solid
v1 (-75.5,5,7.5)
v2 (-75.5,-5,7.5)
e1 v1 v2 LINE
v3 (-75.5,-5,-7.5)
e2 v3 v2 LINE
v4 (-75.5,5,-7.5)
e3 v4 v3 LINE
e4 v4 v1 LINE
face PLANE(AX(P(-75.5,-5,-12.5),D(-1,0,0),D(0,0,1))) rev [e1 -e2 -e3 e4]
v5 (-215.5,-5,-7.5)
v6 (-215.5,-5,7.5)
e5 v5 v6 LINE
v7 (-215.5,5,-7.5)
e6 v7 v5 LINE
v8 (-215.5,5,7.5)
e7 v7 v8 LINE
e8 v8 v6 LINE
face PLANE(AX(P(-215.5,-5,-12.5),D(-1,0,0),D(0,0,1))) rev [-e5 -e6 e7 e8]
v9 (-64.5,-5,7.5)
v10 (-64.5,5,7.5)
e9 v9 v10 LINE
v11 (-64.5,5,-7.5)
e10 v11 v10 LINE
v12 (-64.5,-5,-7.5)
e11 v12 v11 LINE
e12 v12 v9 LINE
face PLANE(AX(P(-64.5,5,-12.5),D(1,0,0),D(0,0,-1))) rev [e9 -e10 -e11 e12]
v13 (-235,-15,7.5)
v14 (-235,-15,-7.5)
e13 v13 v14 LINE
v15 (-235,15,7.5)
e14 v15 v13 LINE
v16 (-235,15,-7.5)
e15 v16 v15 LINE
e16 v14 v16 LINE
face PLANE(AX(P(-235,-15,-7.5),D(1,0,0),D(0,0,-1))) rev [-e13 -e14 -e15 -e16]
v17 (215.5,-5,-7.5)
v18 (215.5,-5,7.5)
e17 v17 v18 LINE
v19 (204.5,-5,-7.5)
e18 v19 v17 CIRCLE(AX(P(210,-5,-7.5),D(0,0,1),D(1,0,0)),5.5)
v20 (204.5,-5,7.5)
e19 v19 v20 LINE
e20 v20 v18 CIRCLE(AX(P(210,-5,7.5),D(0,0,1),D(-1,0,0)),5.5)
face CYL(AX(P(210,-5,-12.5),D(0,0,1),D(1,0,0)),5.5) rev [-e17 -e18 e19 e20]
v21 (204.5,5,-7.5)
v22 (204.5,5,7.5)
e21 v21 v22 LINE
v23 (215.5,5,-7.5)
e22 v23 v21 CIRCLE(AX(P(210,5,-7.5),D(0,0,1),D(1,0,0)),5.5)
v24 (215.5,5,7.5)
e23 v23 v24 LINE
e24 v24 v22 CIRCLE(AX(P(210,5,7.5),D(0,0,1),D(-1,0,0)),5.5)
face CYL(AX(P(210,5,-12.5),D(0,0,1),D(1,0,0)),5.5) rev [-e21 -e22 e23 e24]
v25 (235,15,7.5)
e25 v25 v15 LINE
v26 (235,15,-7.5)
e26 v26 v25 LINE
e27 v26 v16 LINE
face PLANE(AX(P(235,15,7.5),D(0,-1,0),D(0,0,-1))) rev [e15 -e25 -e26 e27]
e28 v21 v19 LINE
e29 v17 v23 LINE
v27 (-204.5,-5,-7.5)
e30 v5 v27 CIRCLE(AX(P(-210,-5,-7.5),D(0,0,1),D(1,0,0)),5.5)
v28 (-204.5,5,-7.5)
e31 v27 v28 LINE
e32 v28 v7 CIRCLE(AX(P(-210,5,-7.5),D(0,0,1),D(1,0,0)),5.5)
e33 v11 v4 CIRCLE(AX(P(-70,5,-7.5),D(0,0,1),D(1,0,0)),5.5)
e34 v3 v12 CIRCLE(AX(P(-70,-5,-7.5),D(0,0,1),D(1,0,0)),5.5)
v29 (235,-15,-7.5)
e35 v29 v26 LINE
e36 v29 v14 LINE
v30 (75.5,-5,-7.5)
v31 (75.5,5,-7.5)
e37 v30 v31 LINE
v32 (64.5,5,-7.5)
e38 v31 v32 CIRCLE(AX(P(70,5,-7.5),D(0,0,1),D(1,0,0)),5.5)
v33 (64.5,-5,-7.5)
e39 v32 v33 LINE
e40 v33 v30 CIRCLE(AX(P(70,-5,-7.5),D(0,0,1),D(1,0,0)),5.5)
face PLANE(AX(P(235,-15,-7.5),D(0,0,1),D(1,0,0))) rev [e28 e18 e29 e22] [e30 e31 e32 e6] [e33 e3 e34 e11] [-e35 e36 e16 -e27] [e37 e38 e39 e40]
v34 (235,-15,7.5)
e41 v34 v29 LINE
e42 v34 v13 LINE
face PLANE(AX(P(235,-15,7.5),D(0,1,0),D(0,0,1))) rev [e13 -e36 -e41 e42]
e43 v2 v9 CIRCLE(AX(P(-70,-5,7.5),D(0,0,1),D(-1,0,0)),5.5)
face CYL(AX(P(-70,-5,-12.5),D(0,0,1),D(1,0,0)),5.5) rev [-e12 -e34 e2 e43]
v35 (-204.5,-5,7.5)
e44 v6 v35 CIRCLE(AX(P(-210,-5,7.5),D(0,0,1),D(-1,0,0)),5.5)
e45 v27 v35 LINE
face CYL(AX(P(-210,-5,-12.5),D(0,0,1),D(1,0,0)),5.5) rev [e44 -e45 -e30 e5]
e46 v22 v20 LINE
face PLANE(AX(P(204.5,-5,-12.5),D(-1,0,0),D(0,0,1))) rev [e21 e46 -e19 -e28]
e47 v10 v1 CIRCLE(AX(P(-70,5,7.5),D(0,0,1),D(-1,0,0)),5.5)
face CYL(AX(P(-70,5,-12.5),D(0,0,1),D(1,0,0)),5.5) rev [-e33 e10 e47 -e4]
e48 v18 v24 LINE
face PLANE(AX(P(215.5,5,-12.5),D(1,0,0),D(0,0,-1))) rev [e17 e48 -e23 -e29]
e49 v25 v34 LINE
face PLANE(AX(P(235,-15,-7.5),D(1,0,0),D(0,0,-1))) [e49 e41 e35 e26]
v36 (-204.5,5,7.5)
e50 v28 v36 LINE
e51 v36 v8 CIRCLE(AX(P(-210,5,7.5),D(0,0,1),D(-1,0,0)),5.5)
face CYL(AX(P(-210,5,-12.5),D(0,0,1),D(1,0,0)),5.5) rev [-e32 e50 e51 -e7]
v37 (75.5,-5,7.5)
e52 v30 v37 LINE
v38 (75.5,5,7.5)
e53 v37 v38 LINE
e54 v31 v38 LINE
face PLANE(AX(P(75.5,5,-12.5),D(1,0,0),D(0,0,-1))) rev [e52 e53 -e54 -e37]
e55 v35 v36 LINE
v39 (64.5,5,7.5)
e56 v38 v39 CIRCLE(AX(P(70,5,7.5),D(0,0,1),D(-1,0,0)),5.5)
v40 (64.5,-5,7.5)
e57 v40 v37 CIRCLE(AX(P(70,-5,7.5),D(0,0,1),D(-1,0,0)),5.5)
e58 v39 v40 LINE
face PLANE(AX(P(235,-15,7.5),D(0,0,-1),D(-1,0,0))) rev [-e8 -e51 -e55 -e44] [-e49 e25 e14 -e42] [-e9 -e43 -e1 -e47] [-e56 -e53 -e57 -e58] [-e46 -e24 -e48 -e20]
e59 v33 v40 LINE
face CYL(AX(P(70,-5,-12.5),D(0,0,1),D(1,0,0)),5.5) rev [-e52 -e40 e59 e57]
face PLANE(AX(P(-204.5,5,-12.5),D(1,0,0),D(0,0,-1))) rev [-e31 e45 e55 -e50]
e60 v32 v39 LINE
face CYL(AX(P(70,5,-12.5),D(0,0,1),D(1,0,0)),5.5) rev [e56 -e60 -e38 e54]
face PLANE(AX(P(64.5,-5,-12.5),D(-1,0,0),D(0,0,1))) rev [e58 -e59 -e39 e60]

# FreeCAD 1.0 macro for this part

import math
import FreeCAD as App
import Part
import Sketcher
from FreeCAD import Vector
Q = App.Units.Quantity

doc = App.newDocument("Part")
params = doc.addObject("Spreadsheet::Sheet", "Params")
for row, (alias, value) in enumerate([
    ("sketch1_width", "30 mm"),
    ("sketch1_height", "15 mm"),
    ("pad1_length", "470 mm"),
    ("sketch2_radius", "5.5 mm"),
    ("sketch2_height", "10 mm"),
    ("pocket1_length", "20 mm"),
    ("linearpattern_pitch", "140 mm"),
], start=1):
    params.set(f"A{row}", alias)
    params.set(f"B{row}", "=" + value)
    params.setAlias(f"B{row}", alias)

body = doc.addObject("PartDesign::Body", "Body")

sketch1 = doc.addObject("Sketcher::SketchObject", "Sketch")
body.addObject(sketch1)
sketch1.AttachmentSupport = (doc.YZ_Plane, [""])
sketch1.MapMode = "FlatFace"
sketch1.AttachmentOffset = App.Placement(Vector(0, 0, -235), App.Rotation())
sketch1.addGeometry([
    Part.LineSegment(Vector(-15, 8, 0), Vector(-15, -8, 0)),
    Part.LineSegment(Vector(-15, -8, 0), Vector(15, -8, 0)),
    Part.LineSegment(Vector(15, -8, 0), Vector(15, 8, 0)),
    Part.LineSegment(Vector(15, 8, 0), Vector(-15, 8, 0)),
], False)
sketch1.addConstraint([
    Sketcher.Constraint("Coincident", 0, 2, 1, 1),
    Sketcher.Constraint("Coincident", 1, 2, 2, 1),
    Sketcher.Constraint("Coincident", 2, 2, 3, 1),
    Sketcher.Constraint("Coincident", 3, 2, 0, 1),
    Sketcher.Constraint("Vertical", 0),
    Sketcher.Constraint("Horizontal", 1),
    Sketcher.Constraint("Vertical", 2),
    Sketcher.Constraint("Horizontal", 3),
    Sketcher.Constraint("Symmetric", 0, 2, 2, 2, -1, 1),
    Sketcher.Constraint("DistanceX", 1, 1, 1, 2, Q("30 mm")),
    Sketcher.Constraint("DistanceY", 0, 2, 0, 1, Q("15 mm")),
])
sketch1.setExpression("Constraints[9]", "Params.sketch1_width")
sketch1.setExpression("Constraints[10]", "Params.sketch1_height")
pad1 = doc.addObject("PartDesign::Pad", "Pad")
body.addObject(pad1)
pad1.Profile = sketch1
pad1.setExpression("Length", "Params.pad1_length")

sketch2 = doc.addObject("Sketcher::SketchObject", "Sketch001")
body.addObject(sketch2)
sketch2.AttachmentSupport = (doc.XY_Plane, [""])
sketch2.MapMode = "FlatFace"
sketch2.AttachmentOffset = App.Placement(Vector(0, 0, 7.5), App.Rotation())
sketch2.addGeometry([
    Part.LineSegment(Vector(-216, 5, 0), Vector(-216, -5, 0)),
    Part.ArcOfCircle(Part.Circle(Vector(-210, -5, 0), Vector(0, 0, 1), 6), math.radians(180), math.radians(360)),
    Part.LineSegment(Vector(-204, -5, 0), Vector(-204, 5, 0)),
    Part.ArcOfCircle(Part.Circle(Vector(-210, 5, 0), Vector(0, 0, 1), 6), math.radians(0), math.radians(180)),
], False)
sketch2.addConstraint([
    Sketcher.Constraint("Tangent", 0, 2, 1, 1),
    Sketcher.Constraint("Tangent", 1, 2, 2, 1),
    Sketcher.Constraint("Tangent", 2, 2, 3, 1),
    Sketcher.Constraint("Tangent", 3, 2, 0, 1),
    Sketcher.Constraint("Vertical", 0),
    Sketcher.Constraint("Vertical", 2),
    Sketcher.Constraint("Radius", 1, Q("5.5 mm")),
    Sketcher.Constraint("DistanceY", 0, 2, 0, 1, Q("10 mm")),
    Sketcher.Constraint("DistanceX", 1, 3, -1, 1, Q("210 mm")),
    Sketcher.Constraint("DistanceY", 1, 3, -1, 1, Q("5 mm")),
])
sketch2.setExpression("Constraints[6]", "Params.sketch2_radius")
sketch2.setExpression("Constraints[7]", "Params.sketch2_height")
pocket1 = doc.addObject("PartDesign::Pocket", "Pocket")
body.addObject(pocket1)
pocket1.Profile = sketch2
pocket1.setExpression("Length", "Params.pocket1_length")
doc.recompute()

linearpattern = doc.addObject("PartDesign::LinearPattern", "LinearPattern")
body.addObject(linearpattern)
linearpattern.Originals = [pocket1]
linearpattern.Direction = (doc.X_Axis, [""])
linearpattern.Mode = "offset"
linearpattern.setExpression("Offset", "Params.linearpattern_pitch")
linearpattern.Occurrences = 4
body.Tip = linearpattern

doc.recompute()
